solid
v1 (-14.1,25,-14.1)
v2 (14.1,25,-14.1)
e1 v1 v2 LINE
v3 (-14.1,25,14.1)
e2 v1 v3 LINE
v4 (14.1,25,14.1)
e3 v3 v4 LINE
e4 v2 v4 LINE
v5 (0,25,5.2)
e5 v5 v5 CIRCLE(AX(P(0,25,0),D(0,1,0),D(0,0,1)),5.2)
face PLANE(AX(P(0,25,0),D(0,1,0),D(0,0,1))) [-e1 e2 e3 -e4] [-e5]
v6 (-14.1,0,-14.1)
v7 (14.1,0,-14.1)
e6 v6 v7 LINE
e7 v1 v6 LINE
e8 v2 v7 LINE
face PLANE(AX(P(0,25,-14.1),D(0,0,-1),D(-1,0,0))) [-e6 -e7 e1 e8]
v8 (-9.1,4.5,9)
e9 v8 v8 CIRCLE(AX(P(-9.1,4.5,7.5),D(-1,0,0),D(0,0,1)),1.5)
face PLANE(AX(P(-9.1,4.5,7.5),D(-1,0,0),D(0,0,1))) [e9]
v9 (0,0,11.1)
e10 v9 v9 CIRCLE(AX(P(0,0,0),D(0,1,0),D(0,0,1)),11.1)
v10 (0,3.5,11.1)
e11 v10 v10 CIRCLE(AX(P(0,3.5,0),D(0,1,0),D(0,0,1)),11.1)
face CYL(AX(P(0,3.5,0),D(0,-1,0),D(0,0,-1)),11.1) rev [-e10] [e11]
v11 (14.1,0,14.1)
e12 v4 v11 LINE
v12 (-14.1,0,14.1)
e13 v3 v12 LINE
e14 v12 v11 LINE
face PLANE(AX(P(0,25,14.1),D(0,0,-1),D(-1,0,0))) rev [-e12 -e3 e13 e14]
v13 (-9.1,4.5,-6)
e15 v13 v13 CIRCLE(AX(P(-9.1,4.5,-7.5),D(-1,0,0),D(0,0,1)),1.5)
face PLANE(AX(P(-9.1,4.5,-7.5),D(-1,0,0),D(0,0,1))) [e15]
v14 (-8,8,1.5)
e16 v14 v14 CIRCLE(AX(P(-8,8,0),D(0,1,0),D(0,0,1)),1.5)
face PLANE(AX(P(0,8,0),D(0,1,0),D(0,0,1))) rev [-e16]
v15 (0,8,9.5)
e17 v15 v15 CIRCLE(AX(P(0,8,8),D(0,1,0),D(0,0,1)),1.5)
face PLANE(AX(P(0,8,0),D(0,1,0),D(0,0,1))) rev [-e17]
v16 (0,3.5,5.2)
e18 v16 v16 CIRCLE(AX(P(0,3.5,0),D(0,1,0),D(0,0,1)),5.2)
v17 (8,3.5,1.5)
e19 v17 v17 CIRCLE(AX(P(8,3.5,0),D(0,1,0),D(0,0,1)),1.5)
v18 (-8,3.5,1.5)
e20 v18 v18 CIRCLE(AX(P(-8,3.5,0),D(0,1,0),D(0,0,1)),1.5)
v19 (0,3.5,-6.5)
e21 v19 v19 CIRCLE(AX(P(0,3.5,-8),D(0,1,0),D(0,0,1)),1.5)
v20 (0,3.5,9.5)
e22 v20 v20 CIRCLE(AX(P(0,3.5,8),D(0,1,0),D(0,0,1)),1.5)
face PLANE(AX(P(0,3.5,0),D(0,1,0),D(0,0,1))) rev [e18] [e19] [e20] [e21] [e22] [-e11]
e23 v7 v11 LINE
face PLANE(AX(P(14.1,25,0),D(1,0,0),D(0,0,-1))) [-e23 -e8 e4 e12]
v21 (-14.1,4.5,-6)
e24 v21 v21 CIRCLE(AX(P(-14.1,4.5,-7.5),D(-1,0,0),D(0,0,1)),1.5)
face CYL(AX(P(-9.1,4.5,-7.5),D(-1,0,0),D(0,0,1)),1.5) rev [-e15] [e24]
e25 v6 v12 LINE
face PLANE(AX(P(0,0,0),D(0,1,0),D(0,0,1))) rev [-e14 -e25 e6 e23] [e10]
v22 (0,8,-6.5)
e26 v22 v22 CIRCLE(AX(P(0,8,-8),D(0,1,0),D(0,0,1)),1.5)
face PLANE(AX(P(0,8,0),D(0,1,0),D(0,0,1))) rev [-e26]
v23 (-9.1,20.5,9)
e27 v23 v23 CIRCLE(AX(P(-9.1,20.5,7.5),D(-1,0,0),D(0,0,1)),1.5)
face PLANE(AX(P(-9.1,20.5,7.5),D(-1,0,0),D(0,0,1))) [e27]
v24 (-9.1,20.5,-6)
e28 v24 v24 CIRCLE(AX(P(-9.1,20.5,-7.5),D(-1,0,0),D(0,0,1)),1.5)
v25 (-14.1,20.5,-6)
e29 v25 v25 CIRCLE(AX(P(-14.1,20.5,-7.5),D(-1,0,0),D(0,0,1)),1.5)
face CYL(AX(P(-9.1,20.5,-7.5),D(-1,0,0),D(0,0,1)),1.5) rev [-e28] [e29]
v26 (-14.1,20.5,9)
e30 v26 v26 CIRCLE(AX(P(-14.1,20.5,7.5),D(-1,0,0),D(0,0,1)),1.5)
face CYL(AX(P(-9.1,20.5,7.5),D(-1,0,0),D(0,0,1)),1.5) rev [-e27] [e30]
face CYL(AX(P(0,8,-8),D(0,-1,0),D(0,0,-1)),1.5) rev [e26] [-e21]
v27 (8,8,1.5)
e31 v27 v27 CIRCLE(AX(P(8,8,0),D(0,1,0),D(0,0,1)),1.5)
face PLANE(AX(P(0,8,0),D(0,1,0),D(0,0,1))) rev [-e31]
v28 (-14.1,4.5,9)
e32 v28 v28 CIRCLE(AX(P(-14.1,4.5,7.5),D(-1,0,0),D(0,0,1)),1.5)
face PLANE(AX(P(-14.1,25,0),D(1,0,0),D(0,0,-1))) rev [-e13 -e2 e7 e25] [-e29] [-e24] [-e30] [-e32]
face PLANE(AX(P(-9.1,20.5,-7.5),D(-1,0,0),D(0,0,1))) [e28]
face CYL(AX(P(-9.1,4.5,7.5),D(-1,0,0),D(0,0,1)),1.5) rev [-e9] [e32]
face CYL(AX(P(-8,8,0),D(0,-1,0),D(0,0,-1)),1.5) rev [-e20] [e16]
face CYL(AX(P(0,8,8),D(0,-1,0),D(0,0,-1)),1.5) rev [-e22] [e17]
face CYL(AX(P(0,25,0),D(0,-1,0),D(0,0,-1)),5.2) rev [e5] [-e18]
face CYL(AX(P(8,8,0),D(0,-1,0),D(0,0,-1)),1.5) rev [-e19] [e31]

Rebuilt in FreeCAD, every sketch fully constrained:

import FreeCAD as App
import Part
import Sketcher
from FreeCAD import Vector

doc = App.newDocument("Part")
params = doc.addObject("Spreadsheet::Sheet", "Params")
for row, (alias, value) in enumerate([
    ("sketch1_width", "28.2 mm"),
    ("pad1_length", "25 mm"),
    ("sketch2_diameter", "10.4 mm"),
    ("pocket1_length", "25 mm"),
    ("sketch3_diameter", "3 mm"),
    ("pocket2_length", "8 mm"),
    ("sketch4_diameter", "3 mm"),
    ("sketch4_diameter2", "22.2 mm"),
    ("sketch4_diameter3", "10.4 mm"),
    ("pocket3_length", "3.5 mm"),
    ("sketch5_diameter", "3 mm"),
    ("pocket4_length", "5 mm"),
], start=1):
    params.set(f"A{row}", alias)
    params.set(f"B{row}", "=" + value)
    params.setAlias(f"B{row}", alias)

body = doc.addObject("PartDesign::Body", "Body")

sketch1 = doc.addObject("Sketcher::SketchObject", "Sketch")
body.addObject(sketch1)
sketch1.AttachmentSupport = (doc.XZ_Plane, [""])
sketch1.MapMode = "FlatFace"
sketch1.addGeometry(Part.LineSegment(Vector(-14, -14, 0), Vector(-14, 14, 0)), False)
sketch1.addGeometry(Part.LineSegment(Vector(-14, 14, 0), Vector(14, 14, 0)), False)
sketch1.addGeometry(Part.LineSegment(Vector(14, 14, 0), Vector(14, -14, 0)), False)
sketch1.addGeometry(Part.LineSegment(Vector(14, -14, 0), Vector(-14, -14, 0)), False)
sketch1.addConstraint(Sketcher.Constraint("Coincident", 0, 2, 1, 1))
sketch1.addConstraint(Sketcher.Constraint("Coincident", 1, 2, 2, 1))
sketch1.addConstraint(Sketcher.Constraint("Coincident", 2, 2, 3, 1))
sketch1.addConstraint(Sketcher.Constraint("Coincident", 3, 2, 0, 1))
sketch1.addConstraint(Sketcher.Constraint("Vertical", 0))
sketch1.addConstraint(Sketcher.Constraint("Horizontal", 1))
sketch1.addConstraint(Sketcher.Constraint("Vertical", 2))
sketch1.addConstraint(Sketcher.Constraint("Horizontal", 3))
sketch1.addConstraint(Sketcher.Constraint("Symmetric", 0, 2, 2, 2, -1, 1))
sketch1.addConstraint(Sketcher.Constraint("Equal", 3, 0))
sketch1.addConstraint(Sketcher.Constraint("DistanceX", 1, 1, 1, 2, 28.2))
sketch1.setExpression("Constraints[10]", "Params.sketch1_width")
pad1 = doc.addObject("PartDesign::Pad", "Pad")
body.addObject(pad1)
pad1.Profile = sketch1
pad1.setExpression("Length", "Params.pad1_length")
pad1.Reversed = True

sketch2 = doc.addObject("Sketcher::SketchObject", "Sketch001")
body.addObject(sketch2)
sketch2.AttachmentSupport = (doc.XZ_Plane, [""])
sketch2.MapMode = "FlatFace"
sketch2.addGeometry(Part.Circle(Vector(0, 0, 0), Vector(0, 0, 1), 5), False)
sketch2.addConstraint(Sketcher.Constraint("Coincident", 0, 3, -1, 1))
sketch2.addConstraint(Sketcher.Constraint("Diameter", 0, 10.4))
sketch2.setExpression("Constraints[1]", "Params.sketch2_diameter")
pocket1 = doc.addObject("PartDesign::Pocket", "Pocket")
body.addObject(pocket1)
pocket1.Profile = sketch2
pocket1.setExpression("Length", "Params.pocket1_length")

sketch3 = doc.addObject("Sketcher::SketchObject", "Sketch002")
body.addObject(sketch3)
sketch3.AttachmentSupport = (doc.XZ_Plane, [""])
sketch3.MapMode = "FlatFace"
sketch3.addGeometry(Part.Circle(Vector(-8, 0, 0), Vector(0, 0, 1), 1.5), False)
sketch3.addGeometry(Part.Circle(Vector(0, 8, 0), Vector(0, 0, 1), 1.5), False)
sketch3.addGeometry(Part.Circle(Vector(8, 0, 0), Vector(0, 0, 1), 1.5), False)
sketch3.addGeometry(Part.Circle(Vector(0, -8, 0), Vector(0, 0, 1), 1.5), False)
sketch3.addConstraint(Sketcher.Constraint("Equal", 0, 1))
sketch3.addConstraint(Sketcher.Constraint("Equal", 1, 2))
sketch3.addConstraint(Sketcher.Constraint("Equal", 2, 3))
sketch3.addConstraint(Sketcher.Constraint("Symmetric", 0, 3, 2, 3, -1, 1))
sketch3.addConstraint(Sketcher.Constraint("Symmetric", 1, 3, 3, 3, -1, 1))
sketch3.addConstraint(Sketcher.Constraint("PointOnObject", 0, 3, -1))
sketch3.addConstraint(Sketcher.Constraint("PointOnObject", 1, 3, -2))
sketch3.addConstraint(Sketcher.Constraint("Diameter", 0, 3.0))
sketch3.addConstraint(Sketcher.Constraint("DistanceX", 0, 3, -1, 1, 8.0))
sketch3.addConstraint(Sketcher.Constraint("DistanceY", -1, 1, 1, 3, 8.0))
sketch3.setExpression("Constraints[7]", "Params.sketch3_diameter")
pocket2 = doc.addObject("PartDesign::Pocket", "Pocket001")
body.addObject(pocket2)
pocket2.Profile = sketch3
pocket2.setExpression("Length", "Params.pocket2_length")

sketch4 = doc.addObject("Sketcher::SketchObject", "Sketch003")
body.addObject(sketch4)
sketch4.AttachmentSupport = (doc.XZ_Plane, [""])
sketch4.MapMode = "FlatFace"
sketch4.addGeometry(Part.Circle(Vector(0, 0, 0), Vector(0, 0, 1), 11.1), False)
sketch4.addGeometry(Part.Circle(Vector(0, -8, 0), Vector(0, 0, 1), 1.5), False)
sketch4.addGeometry(Part.Circle(Vector(-8, 0, 0), Vector(0, 0, 1), 1.5), False)
sketch4.addGeometry(Part.Circle(Vector(8, 0, 0), Vector(0, 0, 1), 1.5), False)
sketch4.addGeometry(Part.Circle(Vector(0, 0, 0), Vector(0, 0, 1), 5.2), False)
sketch4.addGeometry(Part.Circle(Vector(0, 8, 0), Vector(0, 0, 1), 1.5), False)
sketch4.addConstraint(Sketcher.Constraint("Coincident", 0, 3, -1, 1))
sketch4.addConstraint(Sketcher.Constraint("Coincident", 4, 3, -1, 1))
sketch4.addConstraint(Sketcher.Constraint("Equal", 1, 2))
sketch4.addConstraint(Sketcher.Constraint("Equal", 2, 3))
sketch4.addConstraint(Sketcher.Constraint("Equal", 3, 5))
sketch4.addConstraint(Sketcher.Constraint("Symmetric", 2, 3, 3, 3, -1, 1))
sketch4.addConstraint(Sketcher.Constraint("Symmetric", 1, 3, 5, 3, -1, 1))
sketch4.addConstraint(Sketcher.Constraint("PointOnObject", 1, 3, -2))
sketch4.addConstraint(Sketcher.Constraint("PointOnObject", 2, 3, -1))
sketch4.addConstraint(Sketcher.Constraint("Diameter", 1, 3.0))
sketch4.addConstraint(Sketcher.Constraint("Diameter", 0, 22.2))
sketch4.addConstraint(Sketcher.Constraint("Diameter", 4, 10.4))
sketch4.addConstraint(Sketcher.Constraint("DistanceY", 1, 3, -1, 1, 8.0))
sketch4.addConstraint(Sketcher.Constraint("DistanceX", 2, 3, -1, 1, 8.0))
sketch4.setExpression("Constraints[9]", "Params.sketch4_diameter")
sketch4.setExpression("Constraints[10]", "Params.sketch4_diameter2")
sketch4.setExpression("Constraints[11]", "Params.sketch4_diameter3")
pocket3 = doc.addObject("PartDesign::Pocket", "Pocket002")
body.addObject(pocket3)
pocket3.Profile = sketch4
pocket3.setExpression("Length", "Params.pocket3_length")

sketch5 = doc.addObject("Sketcher::SketchObject", "Sketch004")
body.addObject(sketch5)
sketch5.AttachmentSupport = (doc.YZ_Plane, [""])
sketch5.MapMode = "FlatFace"
sketch5.AttachmentOffset = App.Placement(Vector(0, 0, -14.1), App.Rotation())
sketch5.addGeometry(Part.Circle(Vector(20.5, -7.5, 0), Vector(0, 0, 1), 1.5), False)
sketch5.addGeometry(Part.Circle(Vector(20.5, 7.5, 0), Vector(0, 0, 1), 1.5), False)
sketch5.addGeometry(Part.Circle(Vector(4.5, 7.5, 0), Vector(0, 0, 1), 1.5), False)
sketch5.addGeometry(Part.Circle(Vector(4.5, -7.5, 0), Vector(0, 0, 1), 1.5), False)
sketch5.addConstraint(Sketcher.Constraint("Equal", 0, 1))
sketch5.addConstraint(Sketcher.Constraint("Equal", 1, 2))
sketch5.addConstraint(Sketcher.Constraint("Equal", 2, 3))
sketch5.addConstraint(Sketcher.Constraint("Symmetric", 0, 3, 1, 3, -1))
sketch5.addConstraint(Sketcher.Constraint("Symmetric", 2, 3, 3, 3, -1))
sketch5.addConstraint(Sketcher.Constraint("Horizontal", 1, 3, 2, 3))
sketch5.addConstraint(Sketcher.Constraint("Diameter", 0, 3.0))
sketch5.addConstraint(Sketcher.Constraint("DistanceY", 0, 3, 1, 3, 15.0))
sketch5.addConstraint(Sketcher.Constraint("DistanceX", 2, 3, 1, 3, 16.0))
sketch5.addConstraint(Sketcher.Constraint("DistanceX", -1, 1, 0, 3, 20.5))
sketch5.setExpression("Constraints[6]", "Params.sketch5_diameter")
pocket4 = doc.addObject("PartDesign::Pocket", "Pocket003")
body.addObject(pocket4)
pocket4.Profile = sketch5
pocket4.setExpression("Length", "Params.pocket4_length")
pocket4.Reversed = True

doc.recompute()
